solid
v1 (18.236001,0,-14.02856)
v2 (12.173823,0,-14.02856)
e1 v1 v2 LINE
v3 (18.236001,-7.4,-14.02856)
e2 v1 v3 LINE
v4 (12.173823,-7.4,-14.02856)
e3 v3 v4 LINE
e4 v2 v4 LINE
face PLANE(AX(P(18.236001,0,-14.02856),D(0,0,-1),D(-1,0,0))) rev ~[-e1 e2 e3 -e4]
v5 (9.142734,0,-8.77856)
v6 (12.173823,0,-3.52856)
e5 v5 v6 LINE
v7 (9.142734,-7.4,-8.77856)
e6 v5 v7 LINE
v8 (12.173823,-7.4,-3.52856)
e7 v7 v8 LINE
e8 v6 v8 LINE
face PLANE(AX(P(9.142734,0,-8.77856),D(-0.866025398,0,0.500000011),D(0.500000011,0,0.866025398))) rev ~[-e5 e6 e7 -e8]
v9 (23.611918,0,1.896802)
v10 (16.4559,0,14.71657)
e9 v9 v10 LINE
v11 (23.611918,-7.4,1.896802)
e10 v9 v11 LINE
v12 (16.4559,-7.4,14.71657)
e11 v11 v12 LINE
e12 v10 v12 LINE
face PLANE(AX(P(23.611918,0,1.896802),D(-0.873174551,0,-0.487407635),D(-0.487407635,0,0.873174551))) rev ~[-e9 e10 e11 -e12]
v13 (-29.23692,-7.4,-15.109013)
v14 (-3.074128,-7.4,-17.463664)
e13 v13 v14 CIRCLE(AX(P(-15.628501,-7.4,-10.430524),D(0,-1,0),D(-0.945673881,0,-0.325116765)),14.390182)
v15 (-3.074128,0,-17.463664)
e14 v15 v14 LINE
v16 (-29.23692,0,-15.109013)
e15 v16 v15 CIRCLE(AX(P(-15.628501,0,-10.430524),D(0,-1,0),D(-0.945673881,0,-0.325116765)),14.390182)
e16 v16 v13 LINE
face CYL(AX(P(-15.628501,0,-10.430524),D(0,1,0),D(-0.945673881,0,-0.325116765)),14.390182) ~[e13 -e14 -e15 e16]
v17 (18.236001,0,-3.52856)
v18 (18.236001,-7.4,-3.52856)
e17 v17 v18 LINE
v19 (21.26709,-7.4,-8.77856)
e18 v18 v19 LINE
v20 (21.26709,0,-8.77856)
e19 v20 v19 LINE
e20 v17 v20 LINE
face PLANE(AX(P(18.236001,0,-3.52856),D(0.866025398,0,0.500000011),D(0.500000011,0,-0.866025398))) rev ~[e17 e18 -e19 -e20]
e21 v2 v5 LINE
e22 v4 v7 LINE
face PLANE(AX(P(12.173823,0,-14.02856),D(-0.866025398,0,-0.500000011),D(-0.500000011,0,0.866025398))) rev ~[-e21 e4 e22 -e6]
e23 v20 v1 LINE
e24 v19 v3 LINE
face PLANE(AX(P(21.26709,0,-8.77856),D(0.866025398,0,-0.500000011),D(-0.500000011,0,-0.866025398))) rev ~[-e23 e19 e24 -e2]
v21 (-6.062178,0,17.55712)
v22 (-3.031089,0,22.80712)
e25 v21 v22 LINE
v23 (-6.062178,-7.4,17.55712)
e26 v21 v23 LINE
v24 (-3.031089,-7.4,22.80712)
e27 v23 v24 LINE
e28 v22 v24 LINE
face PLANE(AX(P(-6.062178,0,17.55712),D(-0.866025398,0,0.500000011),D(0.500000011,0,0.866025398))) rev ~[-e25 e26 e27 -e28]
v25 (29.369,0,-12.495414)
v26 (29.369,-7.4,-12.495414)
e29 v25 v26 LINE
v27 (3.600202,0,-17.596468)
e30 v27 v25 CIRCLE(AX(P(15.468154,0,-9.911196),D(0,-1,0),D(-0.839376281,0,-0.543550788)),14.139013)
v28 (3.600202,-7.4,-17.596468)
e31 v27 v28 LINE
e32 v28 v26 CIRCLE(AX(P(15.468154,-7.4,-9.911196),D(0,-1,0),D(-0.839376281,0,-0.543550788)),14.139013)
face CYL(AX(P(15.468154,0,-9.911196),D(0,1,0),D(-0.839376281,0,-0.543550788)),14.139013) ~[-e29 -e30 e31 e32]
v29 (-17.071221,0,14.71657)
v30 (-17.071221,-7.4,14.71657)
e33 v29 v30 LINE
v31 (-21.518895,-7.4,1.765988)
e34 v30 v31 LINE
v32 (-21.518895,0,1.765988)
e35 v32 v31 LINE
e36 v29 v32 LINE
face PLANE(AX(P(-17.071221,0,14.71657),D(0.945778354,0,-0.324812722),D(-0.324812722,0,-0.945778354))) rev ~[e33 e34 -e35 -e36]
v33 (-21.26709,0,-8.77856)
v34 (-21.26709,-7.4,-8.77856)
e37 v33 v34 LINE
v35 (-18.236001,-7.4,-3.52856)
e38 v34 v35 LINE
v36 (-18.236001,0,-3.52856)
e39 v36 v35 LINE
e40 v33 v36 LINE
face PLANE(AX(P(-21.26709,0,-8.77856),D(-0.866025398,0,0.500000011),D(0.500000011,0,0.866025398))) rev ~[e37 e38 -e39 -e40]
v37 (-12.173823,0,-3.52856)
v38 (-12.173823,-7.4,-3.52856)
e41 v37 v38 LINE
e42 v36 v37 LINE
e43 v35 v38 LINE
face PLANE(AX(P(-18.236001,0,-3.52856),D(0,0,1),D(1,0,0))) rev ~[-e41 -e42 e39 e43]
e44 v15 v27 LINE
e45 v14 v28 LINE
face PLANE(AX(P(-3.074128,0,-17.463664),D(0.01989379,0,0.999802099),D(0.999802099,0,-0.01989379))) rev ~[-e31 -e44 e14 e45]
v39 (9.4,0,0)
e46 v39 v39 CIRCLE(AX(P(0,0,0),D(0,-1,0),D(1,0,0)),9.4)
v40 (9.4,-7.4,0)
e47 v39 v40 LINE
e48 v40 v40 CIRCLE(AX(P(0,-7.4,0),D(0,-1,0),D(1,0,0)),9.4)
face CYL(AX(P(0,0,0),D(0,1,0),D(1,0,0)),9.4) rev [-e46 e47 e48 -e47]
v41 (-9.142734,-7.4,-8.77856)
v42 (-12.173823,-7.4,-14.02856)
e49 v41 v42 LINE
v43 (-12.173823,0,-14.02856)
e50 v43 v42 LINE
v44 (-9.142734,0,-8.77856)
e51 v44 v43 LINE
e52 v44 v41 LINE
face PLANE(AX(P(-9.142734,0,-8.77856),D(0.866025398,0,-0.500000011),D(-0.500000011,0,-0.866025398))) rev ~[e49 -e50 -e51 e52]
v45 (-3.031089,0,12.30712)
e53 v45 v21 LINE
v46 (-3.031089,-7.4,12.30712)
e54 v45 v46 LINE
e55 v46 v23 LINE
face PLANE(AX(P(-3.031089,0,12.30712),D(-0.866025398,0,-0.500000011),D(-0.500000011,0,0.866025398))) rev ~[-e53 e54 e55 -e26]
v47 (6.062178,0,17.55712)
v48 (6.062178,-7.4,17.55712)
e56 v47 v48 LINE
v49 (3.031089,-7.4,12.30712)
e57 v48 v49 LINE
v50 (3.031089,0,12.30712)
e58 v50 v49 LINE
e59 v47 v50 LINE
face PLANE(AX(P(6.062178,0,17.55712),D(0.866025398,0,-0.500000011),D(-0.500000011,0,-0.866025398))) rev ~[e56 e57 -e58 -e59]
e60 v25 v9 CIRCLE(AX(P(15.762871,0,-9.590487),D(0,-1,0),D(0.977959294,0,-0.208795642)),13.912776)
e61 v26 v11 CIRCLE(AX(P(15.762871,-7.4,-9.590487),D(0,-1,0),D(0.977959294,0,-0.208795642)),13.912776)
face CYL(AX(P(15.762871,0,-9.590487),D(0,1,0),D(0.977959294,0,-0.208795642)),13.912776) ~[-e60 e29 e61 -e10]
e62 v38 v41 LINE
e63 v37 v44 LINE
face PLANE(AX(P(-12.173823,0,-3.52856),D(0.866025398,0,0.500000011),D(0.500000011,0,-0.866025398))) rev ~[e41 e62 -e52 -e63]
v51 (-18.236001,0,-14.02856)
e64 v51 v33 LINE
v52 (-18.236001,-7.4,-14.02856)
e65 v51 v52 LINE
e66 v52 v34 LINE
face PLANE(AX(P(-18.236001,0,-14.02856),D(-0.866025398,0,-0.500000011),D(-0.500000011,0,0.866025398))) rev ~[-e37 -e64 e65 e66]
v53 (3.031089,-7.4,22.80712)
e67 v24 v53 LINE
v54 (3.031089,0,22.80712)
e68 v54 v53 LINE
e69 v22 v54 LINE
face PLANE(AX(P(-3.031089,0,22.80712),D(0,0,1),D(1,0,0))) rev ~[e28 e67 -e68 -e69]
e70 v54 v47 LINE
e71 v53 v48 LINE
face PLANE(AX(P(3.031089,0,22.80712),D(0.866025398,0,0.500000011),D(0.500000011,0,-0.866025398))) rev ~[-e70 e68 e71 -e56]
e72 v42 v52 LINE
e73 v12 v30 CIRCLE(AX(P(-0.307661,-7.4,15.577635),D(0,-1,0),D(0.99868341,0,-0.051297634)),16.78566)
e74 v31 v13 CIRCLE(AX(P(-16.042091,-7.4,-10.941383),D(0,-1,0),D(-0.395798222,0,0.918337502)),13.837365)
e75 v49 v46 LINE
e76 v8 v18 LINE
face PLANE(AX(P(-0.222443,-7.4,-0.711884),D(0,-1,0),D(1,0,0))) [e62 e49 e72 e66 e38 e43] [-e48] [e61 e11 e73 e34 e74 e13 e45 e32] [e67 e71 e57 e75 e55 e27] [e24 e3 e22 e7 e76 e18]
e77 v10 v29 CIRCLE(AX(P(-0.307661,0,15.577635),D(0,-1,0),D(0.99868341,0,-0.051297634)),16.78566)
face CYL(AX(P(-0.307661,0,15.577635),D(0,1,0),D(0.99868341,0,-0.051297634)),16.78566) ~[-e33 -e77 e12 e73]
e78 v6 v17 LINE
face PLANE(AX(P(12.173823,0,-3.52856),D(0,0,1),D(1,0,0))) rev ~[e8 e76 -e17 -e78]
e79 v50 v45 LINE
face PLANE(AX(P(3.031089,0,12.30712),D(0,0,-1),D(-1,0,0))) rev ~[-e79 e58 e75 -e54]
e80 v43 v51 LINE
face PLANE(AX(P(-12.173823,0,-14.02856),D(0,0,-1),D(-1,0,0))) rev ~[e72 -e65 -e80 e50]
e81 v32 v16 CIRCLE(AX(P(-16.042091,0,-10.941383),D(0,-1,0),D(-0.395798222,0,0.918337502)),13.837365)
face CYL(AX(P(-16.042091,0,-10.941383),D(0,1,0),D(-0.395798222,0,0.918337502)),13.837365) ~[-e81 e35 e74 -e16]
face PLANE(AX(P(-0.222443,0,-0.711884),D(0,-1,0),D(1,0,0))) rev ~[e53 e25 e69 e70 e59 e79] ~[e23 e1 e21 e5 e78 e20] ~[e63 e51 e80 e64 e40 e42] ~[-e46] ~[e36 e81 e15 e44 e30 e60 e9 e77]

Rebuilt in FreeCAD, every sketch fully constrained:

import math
import FreeCAD as App
import Part
import Sketcher
from FreeCAD import Vector
Q = App.Units.Quantity


def add_polygon(sketch, points):
    """Adds a closed chain of lines whose ends are joined by coincident constraints."""
    first, n = sketch.GeometryCount, len(points)
    for a, b in zip(points, points[1:] + points[:1]):
        sketch.addGeometry(Part.LineSegment(App.Vector(*a, 0), App.Vector(*b, 0)), False)
    for i in range(n):
        sketch.addConstraint(Sketcher.Constraint("Coincident", first + i, 2, first + (i + 1) % n, 1))

doc = App.newDocument("Part")
body = doc.addObject("PartDesign::Body", "Body")

sketch1 = doc.addObject("Sketcher::SketchObject", "Sketch")
body.addObject(sketch1)
sketch1.AttachmentSupport = (doc.XZ_Plane, [""])
sketch1.MapMode = "FlatFace"
sketch1.addGeometry(Part.LineSegment(Vector(-3, -17, 0), Vector(4, -18, 0)), False)
sketch1.addGeometry(Part.ArcOfCircle(Part.Circle(Vector(15, -10, 0), Vector(0, 0, 1), 14), math.radians(-147), math.radians(-11)), False)
sketch1.addGeometry(Part.ArcOfCircle(Part.Circle(Vector(16, -10, 0), Vector(0, 0, 1), 14), math.radians(-12), math.radians(56)), False)
sketch1.addGeometry(Part.LineSegment(Vector(24, 2, 0), Vector(16, 15, 0)), False)
sketch1.addGeometry(Part.ArcOfCircle(Part.Circle(Vector(0, 16, 0), Vector(0, 0, 1), 17), math.radians(-3), math.radians(183)), False)
sketch1.addGeometry(Part.LineSegment(Vector(-17, 15, 0), Vector(-22, 2, 0)), False)
sketch1.addGeometry(Part.ArcOfCircle(Part.Circle(Vector(-16, -11, 0), Vector(0, 0, 1), 14), math.radians(113), math.radians(198)), False)
sketch1.addGeometry(Part.ArcOfCircle(Part.Circle(Vector(-16, -10, 0), Vector(0, 0, 1), 14), math.radians(-161), math.radians(-29)), False)
add_polygon(sketch1, [(-9, -9), (-12, -14), (-18, -14), (-21, -9), (-18, -4), (-12, -4)])
add_polygon(sketch1, [(12, -4), (18, -4), (21, -9), (18, -14), (12, -14), (9, -9)])
sketch1.addGeometry(Part.Circle(Vector(0, 0, 0), Vector(0, 0, 1), 9), False)
add_polygon(sketch1, [(3, 23), (6, 18), (3, 12), (-3, 12), (-6, 18), (-3, 23)])
sketch1.addConstraint([
    Sketcher.Constraint("Coincident", 0, 2, 1, 1),
    Sketcher.Constraint("Coincident", 1, 2, 2, 1),
    Sketcher.Constraint("Coincident", 2, 2, 3, 1),
    Sketcher.Constraint("Coincident", 3, 2, 4, 1),
    Sketcher.Constraint("Coincident", 4, 2, 5, 1),
    Sketcher.Constraint("Coincident", 5, 2, 6, 1),
    Sketcher.Constraint("Coincident", 6, 2, 7, 1),
    Sketcher.Constraint("Coincident", 7, 2, 0, 1),
    Sketcher.Constraint("Horizontal", 9),
    Sketcher.Constraint("Horizontal", 12),
    Sketcher.Constraint("Horizontal", 14),
    Sketcher.Constraint("Horizontal", 17),
    Sketcher.Constraint("Horizontal", 23),
    Sketcher.Constraint("Horizontal", 26),
    Sketcher.Constraint("Coincident", 20, 3, -1, 1),
    Sketcher.Constraint("Symmetric", 11, 2, 14, 2, -2),
    Sketcher.Constraint("Symmetric", 10, 2, 15, 2, -2),
    Sketcher.Constraint("Symmetric", 9, 2, 16, 2, -2),
    Sketcher.Constraint("Symmetric", 13, 2, 18, 2, -2),
    Sketcher.Constraint("Symmetric", 21, 2, 24, 2, -2),
    Sketcher.Constraint("Parallel", 8, 11),
    Sketcher.Constraint("Parallel", 10, 13),
    Sketcher.Constraint("Parallel", 13, 15),
    Sketcher.Constraint("Parallel", 15, 18),
    Sketcher.Constraint("Parallel", 16, 19),
    Sketcher.Constraint("Parallel", 18, 21),
    Sketcher.Constraint("Parallel", 19, 22),
    Sketcher.Constraint("Parallel", 21, 24),
    Sketcher.Constraint("Parallel", 22, 25),
    Sketcher.Constraint("Horizontal", 3, 2, 4, 2),
    Sketcher.Constraint("Horizontal", 10, 2, 13, 2),
    Sketcher.Constraint("Vertical", 9, 2, 11, 2),
    Sketcher.Constraint("Vertical", 23, 2, 25, 2),
    Sketcher.Constraint("Equal", 17, 23),
    Sketcher.Constraint("Equal", 19, 21),
    Sketcher.Constraint("Diameter", 20, Q("18.8 mm")),
    Sketcher.Constraint("Angle", 8, Q("-120.000001 deg")),
    Sketcher.Constraint("DistanceY", 9, 2, 11, 2, Q("10.5 mm")),
    Sketcher.Constraint("Radius", 4, Q("16.78566 mm")),
    Sketcher.Constraint("DistanceX", -1, 1, 1, 2, Q("29.369 mm")),
    Sketcher.Constraint("DistanceX", 9, 2, -1, 1, Q("18.236001 mm")),
    Sketcher.Constraint("Radius", 1, Q("14.139013 mm")),
    Sketcher.Constraint("Radius", 2, Q("13.912776 mm")),
    Sketcher.Constraint("Radius", 6, Q("13.837365 mm")),
    Sketcher.Constraint("Radius", 7, Q("14.390182 mm")),
    Sketcher.Constraint("DistanceY", 1, 3, 2, 2, Q("11.807998 mm")),
    Sketcher.Constraint("DistanceY", 6, 2, 5, 2, Q("16.875001 mm")),
    Sketcher.Constraint("DistanceX", 10, 2, 6, 3, Q("5.224999 mm")),
    Sketcher.Constraint("DistanceX", 9, 2, 9, 1, Q("6.062178 mm")),
    Sketcher.Constraint("DistanceX", 7, 3, -1, 1, Q("15.628501 mm")),
    Sketcher.Constraint("DistanceX", -1, 1, 0, 2, Q("3.600202 mm")),
    Sketcher.Constraint("DistanceX", -1, 1, 3, 2, Q("16.4559 mm")),
    Sketcher.Constraint("DistanceX", 6, 2, 4, 2, Q("12.165699 mm")),
    Sketcher.Constraint("DistanceX", 4, 2, 21, 2, Q("23.133399 mm")),
    Sketcher.Constraint("Distance", 0, Q("6.675651 mm")),
    Sketcher.Constraint("Distance", 5, Q("13.693041 mm")),
    Sketcher.Constraint("DistanceX", -1, 1, 2, 3, Q("15.762871 mm")),
    Sketcher.Constraint("DistanceY", 0, 2, -1, 1, Q("17.596468 mm")),
    Sketcher.Constraint("DistanceX", -1, 1, 2, 2, Q("23.611918 mm")),
    Sketcher.Constraint("DistanceY", -1, 1, 3, 2, Q("14.71657 mm")),
    Sketcher.Constraint("DistanceY", 8, 2, -1, 1, Q("14.02856 mm")),
    Sketcher.Constraint("DistanceY", -1, 1, 21, 2, Q("17.55712 mm")),
])
pad1 = doc.addObject("PartDesign::Pad", "Pad")
body.addObject(pad1)
pad1.Profile = sketch1
pad1.Length = 7.4

doc.recompute()
